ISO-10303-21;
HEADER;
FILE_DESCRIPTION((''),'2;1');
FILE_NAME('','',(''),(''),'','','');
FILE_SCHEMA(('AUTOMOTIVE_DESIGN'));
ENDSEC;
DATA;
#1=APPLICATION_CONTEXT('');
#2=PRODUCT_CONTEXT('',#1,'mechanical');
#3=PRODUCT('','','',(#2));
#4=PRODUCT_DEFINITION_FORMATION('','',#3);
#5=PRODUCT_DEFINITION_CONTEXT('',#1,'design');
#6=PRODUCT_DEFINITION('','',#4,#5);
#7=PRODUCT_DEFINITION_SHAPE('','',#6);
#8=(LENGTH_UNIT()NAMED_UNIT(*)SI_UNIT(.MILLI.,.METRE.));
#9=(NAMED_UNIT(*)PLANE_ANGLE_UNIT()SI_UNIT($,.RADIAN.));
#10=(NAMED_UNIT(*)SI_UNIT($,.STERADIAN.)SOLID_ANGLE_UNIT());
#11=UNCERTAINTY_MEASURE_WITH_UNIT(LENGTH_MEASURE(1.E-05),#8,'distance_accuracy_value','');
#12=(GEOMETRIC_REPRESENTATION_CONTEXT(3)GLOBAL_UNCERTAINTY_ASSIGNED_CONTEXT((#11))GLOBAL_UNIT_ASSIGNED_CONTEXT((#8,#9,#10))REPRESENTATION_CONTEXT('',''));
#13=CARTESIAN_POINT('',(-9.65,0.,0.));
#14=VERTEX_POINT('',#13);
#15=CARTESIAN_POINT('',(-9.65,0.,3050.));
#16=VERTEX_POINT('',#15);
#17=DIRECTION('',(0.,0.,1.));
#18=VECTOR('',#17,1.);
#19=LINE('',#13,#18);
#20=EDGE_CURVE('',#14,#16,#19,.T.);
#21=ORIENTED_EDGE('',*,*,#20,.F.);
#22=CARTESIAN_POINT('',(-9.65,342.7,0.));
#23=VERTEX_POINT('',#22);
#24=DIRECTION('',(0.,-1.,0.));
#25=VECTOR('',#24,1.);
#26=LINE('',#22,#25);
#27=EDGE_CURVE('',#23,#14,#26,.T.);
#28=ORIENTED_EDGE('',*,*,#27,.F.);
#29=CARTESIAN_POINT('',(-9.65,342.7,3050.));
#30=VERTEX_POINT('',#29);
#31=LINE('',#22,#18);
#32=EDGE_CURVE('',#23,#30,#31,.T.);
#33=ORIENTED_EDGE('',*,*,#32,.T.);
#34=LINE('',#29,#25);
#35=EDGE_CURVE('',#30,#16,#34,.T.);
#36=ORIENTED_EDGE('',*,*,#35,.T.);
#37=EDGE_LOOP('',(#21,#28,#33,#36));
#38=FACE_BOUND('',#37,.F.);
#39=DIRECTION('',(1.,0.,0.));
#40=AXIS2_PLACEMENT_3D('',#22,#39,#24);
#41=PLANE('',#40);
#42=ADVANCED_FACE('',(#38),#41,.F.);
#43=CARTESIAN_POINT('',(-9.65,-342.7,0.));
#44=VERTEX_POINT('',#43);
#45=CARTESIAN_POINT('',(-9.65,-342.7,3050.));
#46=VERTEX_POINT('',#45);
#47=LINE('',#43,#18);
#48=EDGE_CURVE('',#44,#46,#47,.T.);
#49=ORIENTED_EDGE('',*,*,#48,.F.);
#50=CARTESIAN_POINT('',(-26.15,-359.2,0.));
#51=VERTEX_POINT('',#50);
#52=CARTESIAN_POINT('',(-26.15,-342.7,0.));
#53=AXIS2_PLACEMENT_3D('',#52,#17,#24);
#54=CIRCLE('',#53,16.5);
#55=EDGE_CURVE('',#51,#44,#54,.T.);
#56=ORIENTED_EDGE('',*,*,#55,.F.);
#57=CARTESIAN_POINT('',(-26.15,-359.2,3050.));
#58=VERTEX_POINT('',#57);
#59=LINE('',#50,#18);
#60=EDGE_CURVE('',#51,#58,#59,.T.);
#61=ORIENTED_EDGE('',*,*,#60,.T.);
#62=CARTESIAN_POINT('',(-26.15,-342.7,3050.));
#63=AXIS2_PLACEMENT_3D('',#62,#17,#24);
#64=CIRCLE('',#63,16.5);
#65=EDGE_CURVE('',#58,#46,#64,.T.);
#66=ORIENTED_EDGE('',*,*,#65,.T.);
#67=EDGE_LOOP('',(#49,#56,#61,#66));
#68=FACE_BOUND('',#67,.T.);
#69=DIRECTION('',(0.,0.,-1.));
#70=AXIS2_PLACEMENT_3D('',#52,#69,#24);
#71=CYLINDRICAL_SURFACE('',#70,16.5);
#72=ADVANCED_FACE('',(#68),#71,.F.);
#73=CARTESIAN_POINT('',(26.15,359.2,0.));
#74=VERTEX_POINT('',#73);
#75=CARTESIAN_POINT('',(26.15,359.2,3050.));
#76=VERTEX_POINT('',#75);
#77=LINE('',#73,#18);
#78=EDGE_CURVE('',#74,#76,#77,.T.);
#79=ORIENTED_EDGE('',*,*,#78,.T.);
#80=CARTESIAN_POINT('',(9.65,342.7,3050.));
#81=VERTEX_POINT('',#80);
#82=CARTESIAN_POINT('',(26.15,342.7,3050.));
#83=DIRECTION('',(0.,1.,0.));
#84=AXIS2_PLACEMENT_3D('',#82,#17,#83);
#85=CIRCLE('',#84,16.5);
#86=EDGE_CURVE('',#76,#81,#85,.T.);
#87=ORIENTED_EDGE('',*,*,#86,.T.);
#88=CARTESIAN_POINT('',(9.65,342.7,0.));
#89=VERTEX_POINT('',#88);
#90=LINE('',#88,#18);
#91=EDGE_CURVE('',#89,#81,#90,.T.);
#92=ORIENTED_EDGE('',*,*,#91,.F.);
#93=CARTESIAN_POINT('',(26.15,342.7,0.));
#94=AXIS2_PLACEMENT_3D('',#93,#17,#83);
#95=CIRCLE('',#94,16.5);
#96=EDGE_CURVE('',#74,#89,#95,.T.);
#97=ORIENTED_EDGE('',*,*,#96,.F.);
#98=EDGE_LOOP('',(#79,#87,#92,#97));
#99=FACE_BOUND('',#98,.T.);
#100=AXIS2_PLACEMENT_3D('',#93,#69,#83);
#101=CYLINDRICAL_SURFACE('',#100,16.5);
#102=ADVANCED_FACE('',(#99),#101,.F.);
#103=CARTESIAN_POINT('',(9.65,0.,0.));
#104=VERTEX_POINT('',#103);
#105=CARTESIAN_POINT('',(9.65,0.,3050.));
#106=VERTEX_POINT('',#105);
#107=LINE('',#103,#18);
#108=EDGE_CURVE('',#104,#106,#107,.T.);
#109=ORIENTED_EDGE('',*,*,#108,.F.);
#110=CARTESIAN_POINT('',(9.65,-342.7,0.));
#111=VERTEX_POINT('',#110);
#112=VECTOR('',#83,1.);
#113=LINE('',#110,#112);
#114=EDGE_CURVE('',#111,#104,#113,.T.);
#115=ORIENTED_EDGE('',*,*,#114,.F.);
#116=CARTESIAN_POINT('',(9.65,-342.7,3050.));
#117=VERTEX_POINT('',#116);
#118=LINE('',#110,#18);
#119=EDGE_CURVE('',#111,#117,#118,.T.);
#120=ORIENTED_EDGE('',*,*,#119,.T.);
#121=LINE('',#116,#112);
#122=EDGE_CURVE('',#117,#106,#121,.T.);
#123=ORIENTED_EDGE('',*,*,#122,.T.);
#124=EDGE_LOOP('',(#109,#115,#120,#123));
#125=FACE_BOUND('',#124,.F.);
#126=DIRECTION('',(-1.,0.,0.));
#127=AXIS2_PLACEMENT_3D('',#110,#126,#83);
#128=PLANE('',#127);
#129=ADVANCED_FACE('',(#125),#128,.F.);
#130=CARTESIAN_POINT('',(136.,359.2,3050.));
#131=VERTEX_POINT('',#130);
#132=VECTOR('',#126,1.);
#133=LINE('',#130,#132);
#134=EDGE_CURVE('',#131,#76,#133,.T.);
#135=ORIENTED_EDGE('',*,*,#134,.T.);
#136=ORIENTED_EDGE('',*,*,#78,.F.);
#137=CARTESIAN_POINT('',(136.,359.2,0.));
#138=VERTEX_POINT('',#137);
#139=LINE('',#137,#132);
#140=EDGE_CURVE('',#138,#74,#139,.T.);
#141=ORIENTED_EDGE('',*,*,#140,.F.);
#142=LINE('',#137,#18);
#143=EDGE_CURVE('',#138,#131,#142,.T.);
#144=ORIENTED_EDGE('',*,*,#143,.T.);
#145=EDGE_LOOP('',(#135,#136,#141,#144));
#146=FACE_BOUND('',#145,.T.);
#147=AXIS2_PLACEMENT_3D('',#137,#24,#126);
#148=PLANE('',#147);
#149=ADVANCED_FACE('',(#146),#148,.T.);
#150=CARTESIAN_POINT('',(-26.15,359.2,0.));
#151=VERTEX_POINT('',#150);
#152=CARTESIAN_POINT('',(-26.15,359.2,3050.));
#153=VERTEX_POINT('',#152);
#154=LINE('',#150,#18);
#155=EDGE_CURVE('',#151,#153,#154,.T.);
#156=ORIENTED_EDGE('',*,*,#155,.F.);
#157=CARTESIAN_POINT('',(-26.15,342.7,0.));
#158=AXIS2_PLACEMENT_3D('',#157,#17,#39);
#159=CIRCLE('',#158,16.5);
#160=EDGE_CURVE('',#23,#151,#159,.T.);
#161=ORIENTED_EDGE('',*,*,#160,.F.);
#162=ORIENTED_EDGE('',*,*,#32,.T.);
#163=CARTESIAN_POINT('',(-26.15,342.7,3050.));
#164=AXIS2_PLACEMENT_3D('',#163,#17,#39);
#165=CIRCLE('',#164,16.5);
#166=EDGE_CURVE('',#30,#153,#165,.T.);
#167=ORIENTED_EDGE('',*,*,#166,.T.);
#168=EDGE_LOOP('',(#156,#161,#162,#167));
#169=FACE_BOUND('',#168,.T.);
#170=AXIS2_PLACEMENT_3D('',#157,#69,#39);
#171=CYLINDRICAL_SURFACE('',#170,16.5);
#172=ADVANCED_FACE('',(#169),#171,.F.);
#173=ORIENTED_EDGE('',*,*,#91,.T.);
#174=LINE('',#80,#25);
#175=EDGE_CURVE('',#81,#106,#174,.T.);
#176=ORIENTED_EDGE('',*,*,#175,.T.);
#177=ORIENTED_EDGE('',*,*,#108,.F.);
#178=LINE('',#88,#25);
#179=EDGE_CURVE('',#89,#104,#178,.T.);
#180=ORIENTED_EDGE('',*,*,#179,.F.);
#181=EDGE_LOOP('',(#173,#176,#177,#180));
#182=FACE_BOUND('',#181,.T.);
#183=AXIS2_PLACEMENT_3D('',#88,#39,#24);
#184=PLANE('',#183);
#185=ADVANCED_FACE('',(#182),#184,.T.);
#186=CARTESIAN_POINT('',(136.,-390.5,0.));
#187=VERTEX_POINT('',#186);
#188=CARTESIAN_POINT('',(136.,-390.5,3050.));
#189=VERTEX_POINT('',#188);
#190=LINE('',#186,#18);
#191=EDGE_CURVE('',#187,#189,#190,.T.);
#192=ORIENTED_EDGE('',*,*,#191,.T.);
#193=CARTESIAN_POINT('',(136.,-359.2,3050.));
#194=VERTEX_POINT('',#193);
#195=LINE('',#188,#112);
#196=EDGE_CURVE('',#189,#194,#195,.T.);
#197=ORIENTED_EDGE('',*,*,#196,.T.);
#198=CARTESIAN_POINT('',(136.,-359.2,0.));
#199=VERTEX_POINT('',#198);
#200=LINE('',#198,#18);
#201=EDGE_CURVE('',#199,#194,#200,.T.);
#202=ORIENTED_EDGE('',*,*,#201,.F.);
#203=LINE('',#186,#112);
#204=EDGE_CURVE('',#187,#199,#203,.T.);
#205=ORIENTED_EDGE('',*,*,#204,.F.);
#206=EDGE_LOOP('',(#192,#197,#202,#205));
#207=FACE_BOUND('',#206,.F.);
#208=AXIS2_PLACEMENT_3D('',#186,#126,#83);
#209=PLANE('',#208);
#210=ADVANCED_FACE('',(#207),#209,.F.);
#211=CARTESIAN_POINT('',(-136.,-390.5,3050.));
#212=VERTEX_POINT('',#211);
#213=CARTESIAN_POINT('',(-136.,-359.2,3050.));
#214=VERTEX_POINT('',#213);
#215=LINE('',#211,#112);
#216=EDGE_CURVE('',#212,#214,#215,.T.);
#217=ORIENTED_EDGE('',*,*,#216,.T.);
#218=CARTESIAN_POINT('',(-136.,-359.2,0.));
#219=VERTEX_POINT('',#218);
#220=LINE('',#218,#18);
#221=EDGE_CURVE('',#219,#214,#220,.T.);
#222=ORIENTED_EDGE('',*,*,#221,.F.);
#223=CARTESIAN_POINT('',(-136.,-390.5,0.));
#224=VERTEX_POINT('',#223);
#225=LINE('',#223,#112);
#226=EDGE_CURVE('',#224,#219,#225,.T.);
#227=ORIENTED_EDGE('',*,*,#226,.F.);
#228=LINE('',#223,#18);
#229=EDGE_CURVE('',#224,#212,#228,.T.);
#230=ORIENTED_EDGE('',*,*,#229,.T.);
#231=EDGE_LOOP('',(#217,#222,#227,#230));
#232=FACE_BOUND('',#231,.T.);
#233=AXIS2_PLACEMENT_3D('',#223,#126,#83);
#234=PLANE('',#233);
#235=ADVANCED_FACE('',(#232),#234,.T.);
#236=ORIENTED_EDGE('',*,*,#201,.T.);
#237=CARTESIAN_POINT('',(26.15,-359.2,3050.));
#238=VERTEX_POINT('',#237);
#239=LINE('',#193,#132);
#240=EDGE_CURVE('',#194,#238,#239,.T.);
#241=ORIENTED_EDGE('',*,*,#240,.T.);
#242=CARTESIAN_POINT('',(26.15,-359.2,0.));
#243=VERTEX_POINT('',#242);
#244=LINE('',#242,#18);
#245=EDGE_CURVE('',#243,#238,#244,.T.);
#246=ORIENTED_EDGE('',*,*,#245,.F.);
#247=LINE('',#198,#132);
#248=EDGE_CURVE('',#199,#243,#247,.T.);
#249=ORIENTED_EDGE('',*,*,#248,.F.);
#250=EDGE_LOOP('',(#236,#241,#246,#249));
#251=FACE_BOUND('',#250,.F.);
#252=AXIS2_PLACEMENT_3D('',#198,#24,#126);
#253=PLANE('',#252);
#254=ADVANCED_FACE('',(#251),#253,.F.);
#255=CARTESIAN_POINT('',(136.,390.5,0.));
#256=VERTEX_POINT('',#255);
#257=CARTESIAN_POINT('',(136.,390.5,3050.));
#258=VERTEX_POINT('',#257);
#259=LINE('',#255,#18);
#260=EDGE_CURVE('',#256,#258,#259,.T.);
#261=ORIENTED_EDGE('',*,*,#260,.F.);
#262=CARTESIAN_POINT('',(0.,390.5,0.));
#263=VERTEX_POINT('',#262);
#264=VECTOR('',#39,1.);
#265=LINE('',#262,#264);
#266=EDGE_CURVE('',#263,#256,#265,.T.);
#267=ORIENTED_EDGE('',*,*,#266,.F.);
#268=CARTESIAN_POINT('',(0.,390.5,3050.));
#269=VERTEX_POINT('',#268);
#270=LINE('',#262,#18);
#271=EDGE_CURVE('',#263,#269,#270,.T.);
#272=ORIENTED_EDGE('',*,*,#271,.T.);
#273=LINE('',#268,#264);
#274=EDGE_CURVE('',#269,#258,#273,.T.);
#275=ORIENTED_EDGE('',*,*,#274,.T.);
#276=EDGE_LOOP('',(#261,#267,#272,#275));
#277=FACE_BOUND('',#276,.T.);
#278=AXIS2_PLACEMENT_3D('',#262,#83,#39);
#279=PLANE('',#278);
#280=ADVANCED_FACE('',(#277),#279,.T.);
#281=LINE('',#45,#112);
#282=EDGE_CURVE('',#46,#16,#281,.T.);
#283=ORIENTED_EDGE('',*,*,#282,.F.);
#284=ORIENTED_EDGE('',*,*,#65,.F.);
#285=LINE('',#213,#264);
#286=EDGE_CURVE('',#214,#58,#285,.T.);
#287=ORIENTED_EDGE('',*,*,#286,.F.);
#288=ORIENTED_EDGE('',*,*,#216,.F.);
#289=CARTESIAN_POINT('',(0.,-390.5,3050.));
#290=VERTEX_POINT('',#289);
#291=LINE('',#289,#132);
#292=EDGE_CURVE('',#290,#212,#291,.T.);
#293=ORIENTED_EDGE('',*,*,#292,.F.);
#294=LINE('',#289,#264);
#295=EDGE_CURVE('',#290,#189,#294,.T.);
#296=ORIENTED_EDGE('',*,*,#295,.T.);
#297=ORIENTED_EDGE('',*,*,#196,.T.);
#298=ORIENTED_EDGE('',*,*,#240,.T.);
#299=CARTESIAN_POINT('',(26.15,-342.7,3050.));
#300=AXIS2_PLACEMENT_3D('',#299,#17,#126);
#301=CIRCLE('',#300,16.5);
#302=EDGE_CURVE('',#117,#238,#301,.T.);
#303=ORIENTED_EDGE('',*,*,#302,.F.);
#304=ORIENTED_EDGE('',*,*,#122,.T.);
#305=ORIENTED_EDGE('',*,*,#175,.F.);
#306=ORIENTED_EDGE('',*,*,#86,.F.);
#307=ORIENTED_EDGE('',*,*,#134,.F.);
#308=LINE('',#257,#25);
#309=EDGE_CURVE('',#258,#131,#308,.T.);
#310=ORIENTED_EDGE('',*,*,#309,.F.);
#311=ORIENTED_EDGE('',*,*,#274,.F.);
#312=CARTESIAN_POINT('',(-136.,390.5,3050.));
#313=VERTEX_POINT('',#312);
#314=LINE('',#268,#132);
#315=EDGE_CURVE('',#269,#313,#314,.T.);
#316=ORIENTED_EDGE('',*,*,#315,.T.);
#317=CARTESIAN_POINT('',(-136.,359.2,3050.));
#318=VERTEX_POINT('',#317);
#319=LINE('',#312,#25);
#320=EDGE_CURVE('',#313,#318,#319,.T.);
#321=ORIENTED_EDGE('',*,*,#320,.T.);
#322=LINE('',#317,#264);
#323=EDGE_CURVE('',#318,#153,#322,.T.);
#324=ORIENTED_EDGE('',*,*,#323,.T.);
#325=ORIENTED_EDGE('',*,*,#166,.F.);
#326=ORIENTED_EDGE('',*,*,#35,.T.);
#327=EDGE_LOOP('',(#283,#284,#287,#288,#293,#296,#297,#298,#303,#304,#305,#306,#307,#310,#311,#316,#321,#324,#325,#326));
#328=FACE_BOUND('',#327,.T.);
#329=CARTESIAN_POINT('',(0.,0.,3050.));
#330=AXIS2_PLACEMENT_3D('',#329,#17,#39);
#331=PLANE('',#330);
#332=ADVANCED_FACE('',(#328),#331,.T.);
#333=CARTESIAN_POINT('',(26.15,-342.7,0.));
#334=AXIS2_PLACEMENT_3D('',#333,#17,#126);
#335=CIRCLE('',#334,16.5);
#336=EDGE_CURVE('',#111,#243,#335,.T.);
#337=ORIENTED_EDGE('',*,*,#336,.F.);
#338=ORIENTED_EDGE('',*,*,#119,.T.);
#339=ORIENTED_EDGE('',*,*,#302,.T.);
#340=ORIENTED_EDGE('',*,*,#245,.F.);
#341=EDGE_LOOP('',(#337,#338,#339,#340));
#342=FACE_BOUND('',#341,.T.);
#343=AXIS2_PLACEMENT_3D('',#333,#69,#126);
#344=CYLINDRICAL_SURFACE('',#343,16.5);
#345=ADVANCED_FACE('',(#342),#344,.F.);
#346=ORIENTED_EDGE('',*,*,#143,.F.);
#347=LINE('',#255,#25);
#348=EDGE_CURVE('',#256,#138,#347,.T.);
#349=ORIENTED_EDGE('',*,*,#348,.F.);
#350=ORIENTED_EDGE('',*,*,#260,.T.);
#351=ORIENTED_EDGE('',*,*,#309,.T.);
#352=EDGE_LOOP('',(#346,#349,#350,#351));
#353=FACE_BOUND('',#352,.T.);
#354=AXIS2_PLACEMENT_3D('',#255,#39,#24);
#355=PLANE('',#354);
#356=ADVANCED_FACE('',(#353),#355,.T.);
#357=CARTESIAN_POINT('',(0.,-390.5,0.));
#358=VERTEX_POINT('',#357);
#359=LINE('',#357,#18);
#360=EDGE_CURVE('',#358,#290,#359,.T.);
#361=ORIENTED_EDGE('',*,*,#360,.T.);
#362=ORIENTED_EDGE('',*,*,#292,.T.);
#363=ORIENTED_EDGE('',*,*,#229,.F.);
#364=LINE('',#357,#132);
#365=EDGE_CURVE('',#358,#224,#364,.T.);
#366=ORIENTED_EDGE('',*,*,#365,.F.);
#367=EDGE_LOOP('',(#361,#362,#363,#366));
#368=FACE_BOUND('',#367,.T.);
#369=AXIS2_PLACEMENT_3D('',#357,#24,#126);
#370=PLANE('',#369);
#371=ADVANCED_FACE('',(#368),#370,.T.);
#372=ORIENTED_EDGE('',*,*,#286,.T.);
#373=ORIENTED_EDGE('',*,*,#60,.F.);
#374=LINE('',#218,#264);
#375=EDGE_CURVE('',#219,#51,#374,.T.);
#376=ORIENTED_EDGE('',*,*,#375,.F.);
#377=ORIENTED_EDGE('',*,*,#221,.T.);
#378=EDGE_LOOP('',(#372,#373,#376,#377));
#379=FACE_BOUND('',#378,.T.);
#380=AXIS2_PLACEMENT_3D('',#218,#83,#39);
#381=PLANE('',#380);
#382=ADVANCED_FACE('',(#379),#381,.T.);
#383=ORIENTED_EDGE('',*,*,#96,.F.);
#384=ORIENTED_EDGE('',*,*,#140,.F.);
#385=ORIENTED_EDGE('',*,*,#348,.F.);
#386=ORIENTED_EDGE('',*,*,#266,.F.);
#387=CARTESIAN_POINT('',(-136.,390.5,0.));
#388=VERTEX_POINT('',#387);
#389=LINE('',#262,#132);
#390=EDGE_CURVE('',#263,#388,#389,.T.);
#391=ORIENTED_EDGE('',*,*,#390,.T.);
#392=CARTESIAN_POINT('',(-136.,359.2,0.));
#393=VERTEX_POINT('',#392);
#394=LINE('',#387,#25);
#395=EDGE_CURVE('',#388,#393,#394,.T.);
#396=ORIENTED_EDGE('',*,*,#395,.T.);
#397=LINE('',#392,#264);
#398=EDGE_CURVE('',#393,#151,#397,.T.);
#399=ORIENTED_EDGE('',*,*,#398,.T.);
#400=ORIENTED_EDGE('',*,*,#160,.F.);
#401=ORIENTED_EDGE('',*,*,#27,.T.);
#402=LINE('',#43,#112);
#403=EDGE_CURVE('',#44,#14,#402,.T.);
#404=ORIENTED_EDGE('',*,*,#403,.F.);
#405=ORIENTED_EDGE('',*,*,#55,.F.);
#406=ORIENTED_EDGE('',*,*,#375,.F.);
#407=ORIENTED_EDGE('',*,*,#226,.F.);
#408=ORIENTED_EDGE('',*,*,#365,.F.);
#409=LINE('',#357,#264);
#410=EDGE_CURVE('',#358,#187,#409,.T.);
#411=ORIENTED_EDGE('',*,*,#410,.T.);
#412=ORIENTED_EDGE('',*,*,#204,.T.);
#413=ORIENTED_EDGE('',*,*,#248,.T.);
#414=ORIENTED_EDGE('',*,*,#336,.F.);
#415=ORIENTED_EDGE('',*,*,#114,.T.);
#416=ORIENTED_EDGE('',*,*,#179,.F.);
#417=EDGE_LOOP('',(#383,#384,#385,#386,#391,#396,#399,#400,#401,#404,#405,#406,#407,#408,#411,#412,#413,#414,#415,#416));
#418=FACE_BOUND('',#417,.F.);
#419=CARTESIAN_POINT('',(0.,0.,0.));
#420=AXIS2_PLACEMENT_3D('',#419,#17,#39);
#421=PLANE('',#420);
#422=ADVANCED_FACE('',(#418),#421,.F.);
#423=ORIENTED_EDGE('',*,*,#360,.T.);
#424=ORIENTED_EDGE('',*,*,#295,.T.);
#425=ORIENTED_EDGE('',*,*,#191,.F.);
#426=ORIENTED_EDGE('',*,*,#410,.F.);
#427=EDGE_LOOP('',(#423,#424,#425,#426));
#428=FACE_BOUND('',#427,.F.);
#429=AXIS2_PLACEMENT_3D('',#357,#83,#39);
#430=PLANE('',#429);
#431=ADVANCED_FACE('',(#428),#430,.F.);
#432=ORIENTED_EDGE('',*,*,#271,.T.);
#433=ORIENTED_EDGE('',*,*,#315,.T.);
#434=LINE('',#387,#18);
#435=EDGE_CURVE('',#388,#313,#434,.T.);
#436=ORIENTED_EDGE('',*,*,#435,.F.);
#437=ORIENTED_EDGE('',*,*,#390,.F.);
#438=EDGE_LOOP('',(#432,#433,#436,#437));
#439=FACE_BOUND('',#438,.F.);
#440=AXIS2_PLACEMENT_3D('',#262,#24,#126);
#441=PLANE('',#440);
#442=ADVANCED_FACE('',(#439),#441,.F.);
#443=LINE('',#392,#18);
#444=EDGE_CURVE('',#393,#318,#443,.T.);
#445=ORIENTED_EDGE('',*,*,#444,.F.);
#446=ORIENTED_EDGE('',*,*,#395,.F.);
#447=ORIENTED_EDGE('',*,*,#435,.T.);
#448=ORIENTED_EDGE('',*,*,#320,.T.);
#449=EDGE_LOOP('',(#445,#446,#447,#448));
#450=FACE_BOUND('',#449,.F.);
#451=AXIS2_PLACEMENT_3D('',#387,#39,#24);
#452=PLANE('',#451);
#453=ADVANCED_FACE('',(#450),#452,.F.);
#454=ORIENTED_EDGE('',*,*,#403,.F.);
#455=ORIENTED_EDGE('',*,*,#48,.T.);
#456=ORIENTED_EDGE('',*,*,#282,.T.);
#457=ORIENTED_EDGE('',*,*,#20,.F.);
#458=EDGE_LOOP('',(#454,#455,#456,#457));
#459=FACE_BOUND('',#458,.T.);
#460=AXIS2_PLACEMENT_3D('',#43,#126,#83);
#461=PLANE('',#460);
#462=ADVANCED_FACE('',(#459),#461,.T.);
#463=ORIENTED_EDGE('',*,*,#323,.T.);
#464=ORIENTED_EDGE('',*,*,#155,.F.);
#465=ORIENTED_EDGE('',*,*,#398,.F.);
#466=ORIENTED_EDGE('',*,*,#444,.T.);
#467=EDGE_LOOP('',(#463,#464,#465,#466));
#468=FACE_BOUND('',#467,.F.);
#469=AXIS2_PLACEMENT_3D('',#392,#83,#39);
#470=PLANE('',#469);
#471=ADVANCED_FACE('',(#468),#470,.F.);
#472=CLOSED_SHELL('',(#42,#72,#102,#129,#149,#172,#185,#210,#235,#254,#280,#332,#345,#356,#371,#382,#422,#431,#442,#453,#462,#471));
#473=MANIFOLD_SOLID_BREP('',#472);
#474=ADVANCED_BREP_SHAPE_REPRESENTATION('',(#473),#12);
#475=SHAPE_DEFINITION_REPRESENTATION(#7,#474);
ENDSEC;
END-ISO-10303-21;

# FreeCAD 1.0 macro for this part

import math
import FreeCAD as App
import Part
import Sketcher
from FreeCAD import Vector

doc = App.newDocument("Part")
body = doc.addObject("PartDesign::Body", "Body")

# Sketch on XY plane
sketch1 = body.newObject("Sketcher::SketchObject", "Sketch")
sketch1.AttachmentSupport = (doc.getObject("XY_Plane"), [""])
sketch1.MapMode = "FlatFace"
sketch1.addGeometry([
    Part.LineSegment(Vector(-136, -359, 0), Vector(-136, -390, 0)),  # 0
    Part.LineSegment(Vector(-136, -390, 0), Vector(136, -390, 0)),  # 1
    Part.LineSegment(Vector(136, -390, 0), Vector(136, -359, 0)),  # 2
    Part.LineSegment(Vector(136, -359, 0), Vector(26, -359, 0)),  # 3
    Part.ArcOfCircle(Part.Circle(Vector(26, -343, 0), Vector(0, 0, 1), 16), math.radians(180), math.radians(270)),  # 4
    Part.LineSegment(Vector(10, -343, 0), Vector(10, 343, 0)),  # 5
    Part.ArcOfCircle(Part.Circle(Vector(26, 343, 0), Vector(0, 0, 1), 16), math.radians(90), math.radians(180)),  # 6
    Part.LineSegment(Vector(26, 359, 0), Vector(136, 359, 0)),  # 7
    Part.LineSegment(Vector(136, 359, 0), Vector(136, 390, 0)),  # 8
    Part.LineSegment(Vector(136, 390, 0), Vector(-136, 390, 0)),  # 9
    Part.LineSegment(Vector(-136, 390, 0), Vector(-136, 359, 0)),  # 10
    Part.LineSegment(Vector(-136, 359, 0), Vector(-26, 359, 0)),  # 11
    Part.ArcOfCircle(Part.Circle(Vector(-26, 343, 0), Vector(0, 0, 1), 16), math.radians(0), math.radians(90)),  # 12
    Part.LineSegment(Vector(-10, 343, 0), Vector(-10, -343, 0)),  # 13
    Part.ArcOfCircle(Part.Circle(Vector(-26, -343, 0), Vector(0, 0, 1), 16), math.radians(-90), math.radians(0)),  # 14
    Part.LineSegment(Vector(-26, -359, 0), Vector(-136, -359, 0)),  # 15
], False)
sketch1.addConstraint([
    Sketcher.Constraint("Coincident", 0, 2, 1, 1),
    Sketcher.Constraint("Coincident", 1, 2, 2, 1),
    Sketcher.Constraint("Coincident", 2, 2, 3, 1),
    Sketcher.Constraint("Tangent", 3, 2, 4, 2),
    Sketcher.Constraint("Tangent", 4, 1, 5, 1),
    Sketcher.Constraint("Tangent", 5, 2, 6, 2),
    Sketcher.Constraint("Tangent", 6, 1, 7, 1),
    Sketcher.Constraint("Coincident", 7, 2, 8, 1),
    Sketcher.Constraint("Coincident", 8, 2, 9, 1),
    Sketcher.Constraint("Coincident", 9, 2, 10, 1),
    Sketcher.Constraint("Coincident", 10, 2, 11, 1),
    Sketcher.Constraint("Tangent", 11, 2, 12, 2),
    Sketcher.Constraint("Tangent", 12, 1, 13, 1),
    Sketcher.Constraint("Tangent", 13, 2, 14, 2),
    Sketcher.Constraint("Tangent", 14, 1, 15, 1),
    Sketcher.Constraint("Coincident", 15, 2, 0, 1),
    Sketcher.Constraint("Vertical", 0),
    Sketcher.Constraint("Horizontal", 1),
    Sketcher.Constraint("Vertical", 2),
    Sketcher.Constraint("Horizontal", 3),
    Sketcher.Constraint("Vertical", 5),
    Sketcher.Constraint("Horizontal", 7),
    Sketcher.Constraint("Vertical", 8),
    Sketcher.Constraint("Horizontal", 9),
    Sketcher.Constraint("Vertical", 10),
    Sketcher.Constraint("Horizontal", 11),
    Sketcher.Constraint("Vertical", 13),
    Sketcher.Constraint("Horizontal", 15),
    Sketcher.Constraint("Equal", 4, 6),
    Sketcher.Constraint("Equal", 6, 12),
    Sketcher.Constraint("Equal", 12, 14),
    Sketcher.Constraint("Symmetric", 4, 3, 12, 3, -1, 1),
    Sketcher.Constraint("Symmetric", 0, 2, 8, 2, -1, 1),
    Sketcher.Constraint("Symmetric", 7, 2, 10, 2, -2),
    Sketcher.Constraint("Symmetric", 2, 2, 15, 2, -2),
    Sketcher.Constraint("Radius", 4, 16.5),
    Sketcher.Constraint("DistanceY", 0, 2, 0, 1, 31.3),
    Sketcher.Constraint("DistanceX", 0, 2, -1, 1, 136.0),
    Sketcher.Constraint("DistanceY", 0, 2, -1, 1, 390.5),
    Sketcher.Constraint("DistanceX", -1, 1, 4, 1, 9.65),
])
pad1 = body.newObject("PartDesign::Pad", "Pad")
pad1.Profile = sketch1
pad1.Length = 3050

doc.recompute()
